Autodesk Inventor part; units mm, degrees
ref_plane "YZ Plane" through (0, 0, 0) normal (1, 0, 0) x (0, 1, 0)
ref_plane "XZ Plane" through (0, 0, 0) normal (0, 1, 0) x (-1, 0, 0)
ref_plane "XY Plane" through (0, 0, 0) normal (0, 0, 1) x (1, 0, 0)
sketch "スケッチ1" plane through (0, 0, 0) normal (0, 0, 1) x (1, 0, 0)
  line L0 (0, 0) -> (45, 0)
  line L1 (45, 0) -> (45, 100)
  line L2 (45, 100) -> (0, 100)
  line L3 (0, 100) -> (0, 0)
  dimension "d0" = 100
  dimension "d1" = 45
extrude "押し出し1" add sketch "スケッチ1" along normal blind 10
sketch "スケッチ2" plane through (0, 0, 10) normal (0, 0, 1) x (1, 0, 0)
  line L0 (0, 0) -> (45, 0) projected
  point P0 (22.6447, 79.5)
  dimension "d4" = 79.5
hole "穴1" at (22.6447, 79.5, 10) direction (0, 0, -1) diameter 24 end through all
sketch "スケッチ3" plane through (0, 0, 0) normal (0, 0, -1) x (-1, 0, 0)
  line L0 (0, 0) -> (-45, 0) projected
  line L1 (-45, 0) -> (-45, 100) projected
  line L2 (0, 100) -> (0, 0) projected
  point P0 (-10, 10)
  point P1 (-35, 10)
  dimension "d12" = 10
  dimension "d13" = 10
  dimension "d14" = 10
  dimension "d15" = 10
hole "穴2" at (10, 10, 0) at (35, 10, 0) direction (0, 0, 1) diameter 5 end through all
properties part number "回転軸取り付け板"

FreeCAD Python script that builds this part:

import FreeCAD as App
import Part
import Sketcher

V = App.Vector
Q = App.Units.Quantity

doc = App.newDocument("Part")
body = doc.addObject("PartDesign::Body", "Body")

# Sketch on XY plane
sketch1 = body.newObject("Sketcher::SketchObject", "Sketch")
sketch1.AttachmentSupport = (doc.getObject("XY_Plane"), [""])
sketch1.MapMode = "FlatFace"
sketch1.addGeometry(Part.LineSegment(V(0, 100, 0), V(0, 0, 0)), False)
sketch1.addGeometry(Part.LineSegment(V(0, 0, 0), V(45, 0, 0)), False)
sketch1.addGeometry(Part.LineSegment(V(45, 0, 0), V(45, 100, 0)), False)
sketch1.addGeometry(Part.LineSegment(V(45, 100, 0), V(0, 100, 0)), False)
sketch1.addConstraint(Sketcher.Constraint("Coincident", 0, 2, 1, 1))
sketch1.addConstraint(Sketcher.Constraint("Coincident", 1, 2, 2, 1))
sketch1.addConstraint(Sketcher.Constraint("Coincident", 2, 2, 3, 1))
sketch1.addConstraint(Sketcher.Constraint("Coincident", 3, 2, 0, 1))
sketch1.addConstraint(Sketcher.Constraint("Vertical", 0))
sketch1.addConstraint(Sketcher.Constraint("Horizontal", 1))
sketch1.addConstraint(Sketcher.Constraint("Vertical", 2))
sketch1.addConstraint(Sketcher.Constraint("Horizontal", 3))
sketch1.addConstraint(Sketcher.Constraint("Coincident", 0, 2, -1, 1))
sketch1.addConstraint(Sketcher.Constraint("DistanceX", 1, 1, 1, 2, Q("45 mm")))
sketch1.addConstraint(Sketcher.Constraint("DistanceY", 0, 2, 0, 1, Q("100 mm")))
pad1 = body.newObject("PartDesign::Pad", "Pad")
pad1.Profile = sketch1
pad1.Length = 10

# Sketch on XY plane
sketch2 = body.newObject("Sketcher::SketchObject", "Sketch001")
sketch2.AttachmentSupport = (doc.getObject("XY_Plane"), [""])
sketch2.MapMode = "FlatFace"
sketch2.AttachmentOffset = App.Placement(V(0, 0, 10), App.Rotation())
sketch2.addGeometry(Part.Circle(V(22.6447, 79.5, 0), V(0, 0, 1), 12), False)
sketch2.addConstraint(Sketcher.Constraint("Diameter", 0, Q("24 mm")))
sketch2.addConstraint(Sketcher.Constraint("DistanceY", -1, 1, 0, 3, Q("79.5 mm")))
sketch2.addConstraint(Sketcher.Constraint("DistanceX", -1, 1, 0, 3, Q("22.6447 mm")))
doc.recompute()
hole = body.newObject("PartDesign::Hole", "Hole")
hole.Profile = sketch2
hole.ThreadType = "None"
hole.Diameter = 24
hole.DepthType = "ThroughAll"

# Sketch on XY plane
sketch3 = body.newObject("Sketcher::SketchObject", "Sketch002")
sketch3.AttachmentSupport = (doc.getObject("XY_Plane"), [""])
sketch3.MapMode = "FlatFace"
sketch3.addGeometry(Part.Circle(V(10, 10, 0), V(0, 0, 1), 2.5), False)
sketch3.addGeometry(Part.Circle(V(35, 10, 0), V(0, 0, 1), 2.5), False)
sketch3.addConstraint(Sketcher.Constraint("Equal", 0, 1))
sketch3.addConstraint(Sketcher.Constraint("Horizontal", 0, 3, 1, 3))
sketch3.addConstraint(Sketcher.Constraint("Diameter", 0, Q("5 mm")))
sketch3.addConstraint(Sketcher.Constraint("DistanceX", -1, 1, 0, 3, Q("10 mm")))
sketch3.addConstraint(Sketcher.Constraint("DistanceY", -1, 1, 0, 3, Q("10 mm")))
sketch3.addConstraint(Sketcher.Constraint("DistanceX", -1, 1, 1, 3, Q("35 mm")))
doc.recompute()
hole2 = body.newObject("PartDesign::Hole", "Hole001")
hole2.Profile = sketch3
hole2.ThreadType = "None"
hole2.Diameter = 5
hole2.DepthType = "ThroughAll"
hole2.Reversed = True

doc.recompute()
